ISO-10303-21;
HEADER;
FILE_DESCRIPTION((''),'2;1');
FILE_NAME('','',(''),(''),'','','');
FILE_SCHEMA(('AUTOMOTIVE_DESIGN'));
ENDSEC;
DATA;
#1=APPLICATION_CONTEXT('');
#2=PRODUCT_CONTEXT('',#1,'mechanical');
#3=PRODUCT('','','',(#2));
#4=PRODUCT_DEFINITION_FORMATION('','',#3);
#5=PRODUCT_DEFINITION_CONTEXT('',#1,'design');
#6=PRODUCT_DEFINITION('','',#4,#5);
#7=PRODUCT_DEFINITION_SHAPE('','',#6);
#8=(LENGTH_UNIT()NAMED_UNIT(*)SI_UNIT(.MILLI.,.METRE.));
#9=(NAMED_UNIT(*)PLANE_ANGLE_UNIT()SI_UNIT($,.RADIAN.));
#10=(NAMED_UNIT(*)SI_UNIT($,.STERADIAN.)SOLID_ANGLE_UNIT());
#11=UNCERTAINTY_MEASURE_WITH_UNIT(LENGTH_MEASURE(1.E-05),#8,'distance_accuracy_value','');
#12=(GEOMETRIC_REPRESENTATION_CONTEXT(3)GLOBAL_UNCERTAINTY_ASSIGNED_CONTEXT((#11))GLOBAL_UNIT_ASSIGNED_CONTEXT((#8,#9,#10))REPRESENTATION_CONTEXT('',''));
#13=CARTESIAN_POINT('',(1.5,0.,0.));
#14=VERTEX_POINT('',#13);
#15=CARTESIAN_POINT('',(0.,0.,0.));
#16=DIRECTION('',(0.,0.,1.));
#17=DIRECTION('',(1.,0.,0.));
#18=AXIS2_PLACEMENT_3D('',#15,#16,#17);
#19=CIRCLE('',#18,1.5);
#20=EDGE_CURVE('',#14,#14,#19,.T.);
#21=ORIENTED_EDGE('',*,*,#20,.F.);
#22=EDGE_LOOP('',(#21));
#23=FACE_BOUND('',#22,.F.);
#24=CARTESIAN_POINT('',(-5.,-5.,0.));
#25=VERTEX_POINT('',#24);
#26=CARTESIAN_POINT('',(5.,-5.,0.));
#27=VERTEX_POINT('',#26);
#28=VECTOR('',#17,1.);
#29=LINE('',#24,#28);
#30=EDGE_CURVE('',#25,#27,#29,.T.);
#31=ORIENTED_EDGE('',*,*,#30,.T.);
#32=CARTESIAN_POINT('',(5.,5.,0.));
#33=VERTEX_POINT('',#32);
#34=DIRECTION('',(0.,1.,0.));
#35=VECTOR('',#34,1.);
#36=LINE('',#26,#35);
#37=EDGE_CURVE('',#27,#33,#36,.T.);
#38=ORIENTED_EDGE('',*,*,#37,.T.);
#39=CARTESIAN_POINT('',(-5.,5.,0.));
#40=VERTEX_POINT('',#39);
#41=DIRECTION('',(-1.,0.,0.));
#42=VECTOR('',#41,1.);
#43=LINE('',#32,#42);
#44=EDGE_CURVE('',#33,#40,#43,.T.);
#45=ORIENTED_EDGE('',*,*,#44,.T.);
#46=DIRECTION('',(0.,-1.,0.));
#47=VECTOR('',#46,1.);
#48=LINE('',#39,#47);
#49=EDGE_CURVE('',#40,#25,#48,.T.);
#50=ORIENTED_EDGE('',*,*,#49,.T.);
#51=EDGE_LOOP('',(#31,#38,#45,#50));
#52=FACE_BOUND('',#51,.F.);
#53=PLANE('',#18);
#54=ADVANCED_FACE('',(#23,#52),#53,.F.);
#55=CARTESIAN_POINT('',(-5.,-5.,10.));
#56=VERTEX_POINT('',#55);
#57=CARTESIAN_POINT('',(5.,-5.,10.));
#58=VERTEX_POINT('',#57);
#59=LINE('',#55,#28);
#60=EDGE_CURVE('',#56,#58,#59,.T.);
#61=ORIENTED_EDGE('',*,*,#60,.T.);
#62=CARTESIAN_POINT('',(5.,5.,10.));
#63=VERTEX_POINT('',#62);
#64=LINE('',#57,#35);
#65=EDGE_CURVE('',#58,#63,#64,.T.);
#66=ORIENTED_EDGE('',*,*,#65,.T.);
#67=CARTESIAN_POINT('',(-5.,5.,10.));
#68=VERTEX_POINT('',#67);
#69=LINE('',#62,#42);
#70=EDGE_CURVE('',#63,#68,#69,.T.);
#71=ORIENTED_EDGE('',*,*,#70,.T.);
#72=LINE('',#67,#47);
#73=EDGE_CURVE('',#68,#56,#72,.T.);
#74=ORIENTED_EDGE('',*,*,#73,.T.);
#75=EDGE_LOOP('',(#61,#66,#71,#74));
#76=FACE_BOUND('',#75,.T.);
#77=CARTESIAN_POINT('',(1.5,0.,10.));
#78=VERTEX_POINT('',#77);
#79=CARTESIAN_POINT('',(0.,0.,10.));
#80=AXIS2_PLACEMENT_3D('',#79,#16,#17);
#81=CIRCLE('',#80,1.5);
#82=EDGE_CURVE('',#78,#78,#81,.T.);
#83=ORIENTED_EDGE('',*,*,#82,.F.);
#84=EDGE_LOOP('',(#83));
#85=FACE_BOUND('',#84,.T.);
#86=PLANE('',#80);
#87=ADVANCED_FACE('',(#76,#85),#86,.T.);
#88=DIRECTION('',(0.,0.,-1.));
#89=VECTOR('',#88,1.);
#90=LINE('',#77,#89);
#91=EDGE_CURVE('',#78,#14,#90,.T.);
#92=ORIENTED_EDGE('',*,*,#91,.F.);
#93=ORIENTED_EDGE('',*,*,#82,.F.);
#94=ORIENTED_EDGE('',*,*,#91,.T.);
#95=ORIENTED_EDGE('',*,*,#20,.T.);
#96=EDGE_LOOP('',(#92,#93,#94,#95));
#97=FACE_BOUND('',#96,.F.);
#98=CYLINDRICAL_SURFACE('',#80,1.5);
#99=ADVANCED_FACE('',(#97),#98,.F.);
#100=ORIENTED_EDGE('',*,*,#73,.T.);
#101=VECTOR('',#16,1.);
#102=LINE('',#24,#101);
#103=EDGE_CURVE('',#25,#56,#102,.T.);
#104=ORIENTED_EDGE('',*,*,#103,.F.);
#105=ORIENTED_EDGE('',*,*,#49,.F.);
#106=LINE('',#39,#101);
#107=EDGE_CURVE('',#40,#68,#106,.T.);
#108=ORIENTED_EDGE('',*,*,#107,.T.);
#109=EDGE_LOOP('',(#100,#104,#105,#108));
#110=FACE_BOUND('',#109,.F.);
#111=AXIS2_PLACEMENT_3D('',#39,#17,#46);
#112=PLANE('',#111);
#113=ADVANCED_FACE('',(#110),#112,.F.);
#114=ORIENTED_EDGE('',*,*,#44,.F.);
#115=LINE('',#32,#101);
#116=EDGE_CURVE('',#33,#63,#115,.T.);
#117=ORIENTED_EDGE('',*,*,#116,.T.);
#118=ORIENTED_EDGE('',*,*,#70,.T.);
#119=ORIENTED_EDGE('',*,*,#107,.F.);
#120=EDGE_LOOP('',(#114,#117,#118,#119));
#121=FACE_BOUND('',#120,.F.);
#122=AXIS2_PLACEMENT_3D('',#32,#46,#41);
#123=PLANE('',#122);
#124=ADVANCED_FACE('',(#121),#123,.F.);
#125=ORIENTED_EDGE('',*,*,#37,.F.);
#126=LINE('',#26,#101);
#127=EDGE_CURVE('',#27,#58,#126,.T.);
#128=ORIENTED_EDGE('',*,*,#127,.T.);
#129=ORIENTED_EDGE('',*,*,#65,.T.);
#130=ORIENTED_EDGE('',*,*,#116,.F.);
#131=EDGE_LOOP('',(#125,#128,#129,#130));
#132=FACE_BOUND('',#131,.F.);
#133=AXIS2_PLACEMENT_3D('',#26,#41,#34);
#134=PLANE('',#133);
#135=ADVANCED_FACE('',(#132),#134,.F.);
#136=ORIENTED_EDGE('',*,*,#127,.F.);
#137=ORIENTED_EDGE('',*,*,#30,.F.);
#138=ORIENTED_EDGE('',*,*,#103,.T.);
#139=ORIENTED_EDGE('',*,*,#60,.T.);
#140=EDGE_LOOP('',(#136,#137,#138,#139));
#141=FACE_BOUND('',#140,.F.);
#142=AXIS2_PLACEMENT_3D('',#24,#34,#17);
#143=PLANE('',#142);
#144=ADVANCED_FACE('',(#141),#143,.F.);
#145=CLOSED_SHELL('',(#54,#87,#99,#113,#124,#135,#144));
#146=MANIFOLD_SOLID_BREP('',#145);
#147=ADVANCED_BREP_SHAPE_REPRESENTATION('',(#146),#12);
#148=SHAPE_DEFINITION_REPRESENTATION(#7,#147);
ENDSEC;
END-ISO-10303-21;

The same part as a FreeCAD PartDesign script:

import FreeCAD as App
import Part
import Sketcher
Q = App.Units.Quantity


def add_polygon(sketch, points):
    """Adds a closed chain of lines whose ends are joined by coincident constraints."""
    first, n = sketch.GeometryCount, len(points)
    for a, b in zip(points, points[1:] + points[:1]):
        sketch.addGeometry(Part.LineSegment(App.Vector(*a, 0), App.Vector(*b, 0)), False)
    for i in range(n):
        sketch.addConstraint(Sketcher.Constraint("Coincident", first + i, 2, first + (i + 1) % n, 1))

doc = App.newDocument("Part")
body = doc.addObject("PartDesign::Body", "Body")

# Sketch on XY plane
sketch1 = body.newObject("Sketcher::SketchObject", "Sketch")
sketch1.AttachmentSupport = (doc.getObject("XY_Plane"), [""])
sketch1.MapMode = "FlatFace"
add_polygon(sketch1, [(-5, 5), (-5, -5), (5, -5), (5, 5)])  # lines 0-3
sketch1.addConstraint([
    Sketcher.Constraint("Vertical", 0),
    Sketcher.Constraint("Horizontal", 1),
    Sketcher.Constraint("Vertical", 2),
    Sketcher.Constraint("Horizontal", 3),
    Sketcher.Constraint("Symmetric", 0, 2, 2, 2, -1, 1),
    Sketcher.Constraint("Equal", 3, 0),
    Sketcher.Constraint("DistanceX", 1, 1, 1, 2, Q("10 mm")),
])
pad1 = body.newObject("PartDesign::Pad", "Pad")
pad1.Profile = sketch1
pad1.Length = 10

# Sketch on XY plane
sketch2 = body.newObject("Sketcher::SketchObject", "Sketch001")
sketch2.AttachmentSupport = (doc.getObject("XY_Plane"), [""])
sketch2.MapMode = "FlatFace"
sketch2.AttachmentOffset = App.Placement(App.Vector(0, 0, 10), App.Rotation())
sketch2.addGeometry(Part.Circle(App.Vector(0, 0, 0), App.Vector(0, 0, 1), 1.5), False)
sketch2.addConstraint([
    Sketcher.Constraint("Coincident", 0, 3, -1, 1),
    Sketcher.Constraint("Diameter", 0, Q("3 mm")),
])
pocket1 = body.newObject("PartDesign::Pocket", "Pocket")
pocket1.Profile = sketch2
pocket1.Length = 10

doc.recompute()
